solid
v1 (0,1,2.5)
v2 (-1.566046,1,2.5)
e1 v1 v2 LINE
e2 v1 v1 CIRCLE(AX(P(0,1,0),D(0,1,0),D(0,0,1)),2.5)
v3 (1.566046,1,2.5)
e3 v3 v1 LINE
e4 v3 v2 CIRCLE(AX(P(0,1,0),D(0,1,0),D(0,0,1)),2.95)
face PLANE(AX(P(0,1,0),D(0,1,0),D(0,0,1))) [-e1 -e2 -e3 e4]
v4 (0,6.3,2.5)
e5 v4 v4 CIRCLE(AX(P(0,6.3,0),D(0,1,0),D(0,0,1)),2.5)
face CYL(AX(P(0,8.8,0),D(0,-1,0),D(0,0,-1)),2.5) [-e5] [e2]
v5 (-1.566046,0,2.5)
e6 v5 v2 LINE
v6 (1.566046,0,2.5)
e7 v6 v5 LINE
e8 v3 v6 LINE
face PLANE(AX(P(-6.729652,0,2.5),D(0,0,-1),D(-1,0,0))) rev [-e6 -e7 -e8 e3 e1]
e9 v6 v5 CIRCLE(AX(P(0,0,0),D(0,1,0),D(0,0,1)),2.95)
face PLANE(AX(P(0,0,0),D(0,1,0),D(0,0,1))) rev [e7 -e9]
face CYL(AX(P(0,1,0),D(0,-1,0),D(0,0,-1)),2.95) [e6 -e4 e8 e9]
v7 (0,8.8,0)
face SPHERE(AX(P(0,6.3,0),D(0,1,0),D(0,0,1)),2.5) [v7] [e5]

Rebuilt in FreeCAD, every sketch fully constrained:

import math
import FreeCAD as App
import Part
import Sketcher

V = App.Vector

doc = App.newDocument("Part")
params = doc.addObject("Spreadsheet::Sheet", "Params")
for row, (alias, value) in enumerate([
    ("sketch1_diameter", "5.9 mm"),
    ("pad1_length", "1 mm"),
    ("sketch2_diameter", "5 mm"),
    ("pad2_length", "7.8 mm"),
    ("sketch3_radius", "2.5 mm"),
    ("sketch3_width", "5.3 mm"),
    ("groove_angle", "360 deg"),
], start=1):
    params.set(f"A{row}", alias)
    params.set(f"B{row}", "=" + value)
    params.setAlias(f"B{row}", alias)

body = doc.addObject("PartDesign::Body", "Body")

sketch1 = body.newObject("Sketcher::SketchObject", "Sketch")
sketch1.AttachmentSupport = (doc.getObject("XZ_Plane"), [""])
sketch1.MapMode = "FlatFace"
sketch1.addGeometry(Part.Circle(V(0, 0, 0), V(0, 0, 1), 3), False)
sketch1.addConstraint(Sketcher.Constraint("Coincident", 0, 3, -1, 1))
sketch1.addConstraint(Sketcher.Constraint("Diameter", 0, 5.9))
sketch1.setExpression("Constraints[1]", "Params.sketch1_diameter")
pad1 = body.newObject("PartDesign::Pad", "Pad")
pad1.Profile = sketch1
pad1.setExpression("Length", "Params.pad1_length")
pad1.Reversed = True

sketch2 = body.newObject("Sketcher::SketchObject", "Sketch001")
sketch2.AttachmentSupport = (doc.getObject("XZ_Plane"), [""])
sketch2.MapMode = "FlatFace"
sketch2.AttachmentOffset = App.Placement(V(0, 0, -1), App.Rotation())
sketch2.addGeometry(Part.Circle(V(0, 0, 0), V(0, 0, 1), 2.5), False)
sketch2.addConstraint(Sketcher.Constraint("Coincident", 0, 3, -1, 1))
sketch2.addConstraint(Sketcher.Constraint("Diameter", 0, 5.0))
sketch2.setExpression("Constraints[1]", "Params.sketch2_diameter")
pad2 = body.newObject("PartDesign::Pad", "Pad001")
pad2.Profile = sketch2
pad2.setExpression("Length", "Params.pad2_length")
pad2.Reversed = True

sketch3 = body.newObject("Sketcher::SketchObject", "Sketch002")
sketch3.AttachmentSupport = (doc.getObject("YZ_Plane"), [""])
sketch3.MapMode = "FlatFace"
sketch3.addGeometry(Part.ArcOfCircle(Part.Circle(V(6.3, 0, 0), V(0, 0, 1), 2.5), math.radians(0), math.radians(90)), False)
sketch3.addGeometry(Part.LineSegment(V(8.8, 0, 0), V(10.7, 0, 0)), False)
sketch3.addGeometry(Part.LineSegment(V(10.7, 0, 0), V(10.7, 5.4, 0)), False)
sketch3.addGeometry(Part.LineSegment(V(10.7, 5.4, 0), V(1, 5.4, 0)), False)
sketch3.addGeometry(Part.LineSegment(V(1, 5.4, 0), V(1, 2.5, 0)), False)
sketch3.addGeometry(Part.LineSegment(V(1, 2.5, 0), V(6.3, 2.5, 0)), False)
sketch3.addConstraint(Sketcher.Constraint("Coincident", 0, 1, 1, 1))
sketch3.addConstraint(Sketcher.Constraint("Coincident", 1, 2, 2, 1))
sketch3.addConstraint(Sketcher.Constraint("Coincident", 2, 2, 3, 1))
sketch3.addConstraint(Sketcher.Constraint("Coincident", 3, 2, 4, 1))
sketch3.addConstraint(Sketcher.Constraint("Coincident", 4, 2, 5, 1))
sketch3.addConstraint(Sketcher.Constraint("Tangent", 5, 2, 0, 2))
sketch3.addConstraint(Sketcher.Constraint("Horizontal", 1))
sketch3.addConstraint(Sketcher.Constraint("Vertical", 2))
sketch3.addConstraint(Sketcher.Constraint("Horizontal", 3))
sketch3.addConstraint(Sketcher.Constraint("Vertical", 4))
sketch3.addConstraint(Sketcher.Constraint("Horizontal", 5))
sketch3.addConstraint(Sketcher.Constraint("PointOnObject", 0, 3, -1))
sketch3.addConstraint(Sketcher.Constraint("PointOnObject", 0, 1, -1))
sketch3.addConstraint(Sketcher.Constraint("Radius", 0, 2.5))
sketch3.addConstraint(Sketcher.Constraint("DistanceX", 5, 1, 5, 2, 5.3))
sketch3.addConstraint(Sketcher.Constraint("DistanceX", -1, 1, 3, 2, 1.0))
sketch3.addConstraint(Sketcher.Constraint("DistanceX", 1, 1, 1, 2, 1.927799))
sketch3.addConstraint(Sketcher.Constraint("DistanceY", 2, 1, 2, 2, 5.449902))
sketch3.setExpression("Constraints[13]", "Params.sketch3_radius")
sketch3.setExpression("Constraints[14]", "Params.sketch3_width")
groove = body.newObject("PartDesign::Groove", "Groove")
groove.Profile = sketch3
groove.ReferenceAxis = (sketch3, ["H_Axis"])
groove.setExpression("Angle", "Params.groove_angle")

sketch4 = body.newObject("Sketcher::SketchObject", "Sketch003")
sketch4.AttachmentSupport = (doc.getObject("XZ_Plane"), [""])
sketch4.MapMode = "FlatFace"
sketch4.AttachmentOffset = App.Placement(V(0, 0, -1), App.Rotation())
sketch4.addGeometry(Part.LineSegment(V(-6.7, 2.5, 0), V(-6.7, 6.3, 0)), False)
sketch4.addGeometry(Part.LineSegment(V(-6.7, 6.3, 0), V(9.9, 6.3, 0)), False)
sketch4.addGeometry(Part.LineSegment(V(9.9, 6.3, 0), V(9.9, 2.5, 0)), False)
sketch4.addGeometry(Part.LineSegment(V(9.9, 2.5, 0), V(-6.7, 2.5, 0)), False)
sketch4.addConstraint(Sketcher.Constraint("Coincident", 0, 2, 1, 1))
sketch4.addConstraint(Sketcher.Constraint("Coincident", 1, 2, 2, 1))
sketch4.addConstraint(Sketcher.Constraint("Coincident", 2, 2, 3, 1))
sketch4.addConstraint(Sketcher.Constraint("Coincident", 3, 2, 0, 1))
sketch4.addConstraint(Sketcher.Constraint("Vertical", 0))
sketch4.addConstraint(Sketcher.Constraint("Horizontal", 1))
sketch4.addConstraint(Sketcher.Constraint("Vertical", 2))
sketch4.addConstraint(Sketcher.Constraint("Horizontal", 3))
sketch4.addConstraint(Sketcher.Constraint("DistanceY", -1, 1, 2, 2, 2.5))
sketch4.addConstraint(Sketcher.Constraint("DistanceX", 1, 1, 1, 2, 16.586996))
sketch4.addConstraint(Sketcher.Constraint("DistanceY", 0, 1, 0, 2, 3.788233))
sketch4.addConstraint(Sketcher.Constraint("DistanceX", 0, 2, -1, 1, 6.729652))
pocket1 = body.newObject("PartDesign::Pocket", "Pocket")
pocket1.Profile = sketch4
pocket1.Type = "ThroughAll"
pocket1.Midplane = True

doc.recompute()
